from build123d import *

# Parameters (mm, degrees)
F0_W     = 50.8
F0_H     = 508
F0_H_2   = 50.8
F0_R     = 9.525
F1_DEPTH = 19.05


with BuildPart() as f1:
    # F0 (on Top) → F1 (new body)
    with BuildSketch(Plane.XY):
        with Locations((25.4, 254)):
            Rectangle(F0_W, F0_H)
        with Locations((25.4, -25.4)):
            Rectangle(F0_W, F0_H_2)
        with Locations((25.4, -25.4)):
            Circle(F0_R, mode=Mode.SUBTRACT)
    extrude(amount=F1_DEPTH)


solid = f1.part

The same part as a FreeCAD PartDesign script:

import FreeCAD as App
import Part
import Sketcher
Q = App.Units.Quantity

doc = App.newDocument("Part")
body = doc.addObject("PartDesign::Body", "Body")

sketch1 = body.newObject("Sketcher::SketchObject", "Sketch")
sketch1.AttachmentSupport = (doc.getObject("XY_Plane"), [""])
sketch1.MapMode = "FlatFace"
sketch1.addGeometry([
    Part.LineSegment(App.Vector(0, 508, 0), App.Vector(0, -51, 0)),
    Part.LineSegment(App.Vector(0, -51, 0), App.Vector(51, -51, 0)),
    Part.LineSegment(App.Vector(51, -51, 0), App.Vector(51, 508, 0)),
    Part.LineSegment(App.Vector(51, 508, 0), App.Vector(0, 508, 0)),
    Part.Circle(App.Vector(25, -25, 0), App.Vector(0, 0, 1), 10),
], False)
sketch1.addConstraint([
    Sketcher.Constraint("Coincident", 0, 2, 1, 1),
    Sketcher.Constraint("Coincident", 1, 2, 2, 1),
    Sketcher.Constraint("Coincident", 2, 2, 3, 1),
    Sketcher.Constraint("Coincident", 3, 2, 0, 1),
    Sketcher.Constraint("Vertical", 0),
    Sketcher.Constraint("Horizontal", 1),
    Sketcher.Constraint("Vertical", 2),
    Sketcher.Constraint("Horizontal", 3),
    Sketcher.Constraint("PointOnObject", 0, 2, -2),
    Sketcher.Constraint("Diameter", 4, Q("0.75 in")),
    Sketcher.Constraint("DistanceX", 1, 1, 1, 2, Q("2 in")),
    Sketcher.Constraint("DistanceY", 0, 2, 0, 1, Q("22 in")),
    Sketcher.Constraint("DistanceX", -1, 1, 4, 3, Q("1 in")),
    Sketcher.Constraint("DistanceY", 4, 3, -1, 1, Q("1 in")),
    Sketcher.Constraint("DistanceY", 0, 2, -1, 1, Q("2 in")),
])
pad1 = body.newObject("PartDesign::Pad", "Pad")
pad1.Profile = sketch1
pad1.Length = Q("0.75 in")

doc.recompute()
